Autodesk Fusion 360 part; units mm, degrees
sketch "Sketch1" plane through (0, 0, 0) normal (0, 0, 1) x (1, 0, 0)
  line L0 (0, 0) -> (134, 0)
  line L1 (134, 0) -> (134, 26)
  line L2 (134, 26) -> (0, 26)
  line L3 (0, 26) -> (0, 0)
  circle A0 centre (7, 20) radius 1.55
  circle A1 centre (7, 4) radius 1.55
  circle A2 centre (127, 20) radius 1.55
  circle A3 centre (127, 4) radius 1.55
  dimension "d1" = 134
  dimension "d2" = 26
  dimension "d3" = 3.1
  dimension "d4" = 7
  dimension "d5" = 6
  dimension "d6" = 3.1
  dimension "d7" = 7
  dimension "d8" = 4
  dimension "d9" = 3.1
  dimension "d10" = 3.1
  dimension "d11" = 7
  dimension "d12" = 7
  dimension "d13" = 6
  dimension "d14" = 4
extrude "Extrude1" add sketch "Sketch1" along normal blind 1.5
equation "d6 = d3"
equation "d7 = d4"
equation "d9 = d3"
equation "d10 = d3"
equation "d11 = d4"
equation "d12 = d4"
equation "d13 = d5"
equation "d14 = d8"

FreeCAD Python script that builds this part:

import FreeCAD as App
import Part
import Sketcher
Q = App.Units.Quantity

doc = App.newDocument("Part")
body = doc.addObject("PartDesign::Body", "Body")

# Sketch on XY plane
sketch1 = body.newObject("Sketcher::SketchObject", "Sketch")
sketch1.AttachmentSupport = (doc.getObject("XY_Plane"), [""])
sketch1.MapMode = "FlatFace"
sketch1.addGeometry([
    Part.LineSegment(App.Vector(0, 26, 0), App.Vector(0, 0, 0)),  # 0
    Part.LineSegment(App.Vector(0, 0, 0), App.Vector(134, 0, 0)),  # 1
    Part.LineSegment(App.Vector(134, 0, 0), App.Vector(134, 26, 0)),  # 2
    Part.LineSegment(App.Vector(134, 26, 0), App.Vector(0, 26, 0)),  # 3
    Part.Circle(App.Vector(7, 4, 0), App.Vector(0, 0, 1), 1.6),  # 4
    Part.Circle(App.Vector(127, 4, 0), App.Vector(0, 0, 1), 1.6),  # 5
    Part.Circle(App.Vector(7, 20, 0), App.Vector(0, 0, 1), 1.6),  # 6
    Part.Circle(App.Vector(127, 20, 0), App.Vector(0, 0, 1), 1.6),  # 7
], False)
sketch1.addConstraint([
    Sketcher.Constraint("Coincident", 0, 2, 1, 1),
    Sketcher.Constraint("Coincident", 1, 2, 2, 1),
    Sketcher.Constraint("Coincident", 2, 2, 3, 1),
    Sketcher.Constraint("Coincident", 3, 2, 0, 1),
    Sketcher.Constraint("Vertical", 0),
    Sketcher.Constraint("Horizontal", 1),
    Sketcher.Constraint("Vertical", 2),
    Sketcher.Constraint("Horizontal", 3),
    Sketcher.Constraint("Coincident", 0, 2, -1, 1),
    Sketcher.Constraint("Equal", 4, 5),
    Sketcher.Constraint("Equal", 5, 6),
    Sketcher.Constraint("Equal", 6, 7),
    Sketcher.Constraint("Horizontal", 4, 3, 5, 3),
    Sketcher.Constraint("Horizontal", 6, 3, 7, 3),
    Sketcher.Constraint("Vertical", 4, 3, 6, 3),
    Sketcher.Constraint("Vertical", 5, 3, 7, 3),
    Sketcher.Constraint("Diameter", 4, Q("3.1 mm")),
    Sketcher.Constraint("DistanceX", 1, 1, 1, 2, Q("134 mm")),
    Sketcher.Constraint("DistanceY", 0, 2, 0, 1, Q("26 mm")),
    Sketcher.Constraint("DistanceX", -1, 1, 4, 3, Q("7 mm")),
    Sketcher.Constraint("DistanceY", -1, 1, 4, 3, Q("4 mm")),
    Sketcher.Constraint("DistanceX", 5, 3, 1, 2, Q("7 mm")),
    Sketcher.Constraint("DistanceY", 7, 3, 2, 2, Q("6 mm")),
])
pad1 = body.newObject("PartDesign::Pad", "Pad")
pad1.Profile = sketch1
pad1.Length = 1.5

doc.recompute()
